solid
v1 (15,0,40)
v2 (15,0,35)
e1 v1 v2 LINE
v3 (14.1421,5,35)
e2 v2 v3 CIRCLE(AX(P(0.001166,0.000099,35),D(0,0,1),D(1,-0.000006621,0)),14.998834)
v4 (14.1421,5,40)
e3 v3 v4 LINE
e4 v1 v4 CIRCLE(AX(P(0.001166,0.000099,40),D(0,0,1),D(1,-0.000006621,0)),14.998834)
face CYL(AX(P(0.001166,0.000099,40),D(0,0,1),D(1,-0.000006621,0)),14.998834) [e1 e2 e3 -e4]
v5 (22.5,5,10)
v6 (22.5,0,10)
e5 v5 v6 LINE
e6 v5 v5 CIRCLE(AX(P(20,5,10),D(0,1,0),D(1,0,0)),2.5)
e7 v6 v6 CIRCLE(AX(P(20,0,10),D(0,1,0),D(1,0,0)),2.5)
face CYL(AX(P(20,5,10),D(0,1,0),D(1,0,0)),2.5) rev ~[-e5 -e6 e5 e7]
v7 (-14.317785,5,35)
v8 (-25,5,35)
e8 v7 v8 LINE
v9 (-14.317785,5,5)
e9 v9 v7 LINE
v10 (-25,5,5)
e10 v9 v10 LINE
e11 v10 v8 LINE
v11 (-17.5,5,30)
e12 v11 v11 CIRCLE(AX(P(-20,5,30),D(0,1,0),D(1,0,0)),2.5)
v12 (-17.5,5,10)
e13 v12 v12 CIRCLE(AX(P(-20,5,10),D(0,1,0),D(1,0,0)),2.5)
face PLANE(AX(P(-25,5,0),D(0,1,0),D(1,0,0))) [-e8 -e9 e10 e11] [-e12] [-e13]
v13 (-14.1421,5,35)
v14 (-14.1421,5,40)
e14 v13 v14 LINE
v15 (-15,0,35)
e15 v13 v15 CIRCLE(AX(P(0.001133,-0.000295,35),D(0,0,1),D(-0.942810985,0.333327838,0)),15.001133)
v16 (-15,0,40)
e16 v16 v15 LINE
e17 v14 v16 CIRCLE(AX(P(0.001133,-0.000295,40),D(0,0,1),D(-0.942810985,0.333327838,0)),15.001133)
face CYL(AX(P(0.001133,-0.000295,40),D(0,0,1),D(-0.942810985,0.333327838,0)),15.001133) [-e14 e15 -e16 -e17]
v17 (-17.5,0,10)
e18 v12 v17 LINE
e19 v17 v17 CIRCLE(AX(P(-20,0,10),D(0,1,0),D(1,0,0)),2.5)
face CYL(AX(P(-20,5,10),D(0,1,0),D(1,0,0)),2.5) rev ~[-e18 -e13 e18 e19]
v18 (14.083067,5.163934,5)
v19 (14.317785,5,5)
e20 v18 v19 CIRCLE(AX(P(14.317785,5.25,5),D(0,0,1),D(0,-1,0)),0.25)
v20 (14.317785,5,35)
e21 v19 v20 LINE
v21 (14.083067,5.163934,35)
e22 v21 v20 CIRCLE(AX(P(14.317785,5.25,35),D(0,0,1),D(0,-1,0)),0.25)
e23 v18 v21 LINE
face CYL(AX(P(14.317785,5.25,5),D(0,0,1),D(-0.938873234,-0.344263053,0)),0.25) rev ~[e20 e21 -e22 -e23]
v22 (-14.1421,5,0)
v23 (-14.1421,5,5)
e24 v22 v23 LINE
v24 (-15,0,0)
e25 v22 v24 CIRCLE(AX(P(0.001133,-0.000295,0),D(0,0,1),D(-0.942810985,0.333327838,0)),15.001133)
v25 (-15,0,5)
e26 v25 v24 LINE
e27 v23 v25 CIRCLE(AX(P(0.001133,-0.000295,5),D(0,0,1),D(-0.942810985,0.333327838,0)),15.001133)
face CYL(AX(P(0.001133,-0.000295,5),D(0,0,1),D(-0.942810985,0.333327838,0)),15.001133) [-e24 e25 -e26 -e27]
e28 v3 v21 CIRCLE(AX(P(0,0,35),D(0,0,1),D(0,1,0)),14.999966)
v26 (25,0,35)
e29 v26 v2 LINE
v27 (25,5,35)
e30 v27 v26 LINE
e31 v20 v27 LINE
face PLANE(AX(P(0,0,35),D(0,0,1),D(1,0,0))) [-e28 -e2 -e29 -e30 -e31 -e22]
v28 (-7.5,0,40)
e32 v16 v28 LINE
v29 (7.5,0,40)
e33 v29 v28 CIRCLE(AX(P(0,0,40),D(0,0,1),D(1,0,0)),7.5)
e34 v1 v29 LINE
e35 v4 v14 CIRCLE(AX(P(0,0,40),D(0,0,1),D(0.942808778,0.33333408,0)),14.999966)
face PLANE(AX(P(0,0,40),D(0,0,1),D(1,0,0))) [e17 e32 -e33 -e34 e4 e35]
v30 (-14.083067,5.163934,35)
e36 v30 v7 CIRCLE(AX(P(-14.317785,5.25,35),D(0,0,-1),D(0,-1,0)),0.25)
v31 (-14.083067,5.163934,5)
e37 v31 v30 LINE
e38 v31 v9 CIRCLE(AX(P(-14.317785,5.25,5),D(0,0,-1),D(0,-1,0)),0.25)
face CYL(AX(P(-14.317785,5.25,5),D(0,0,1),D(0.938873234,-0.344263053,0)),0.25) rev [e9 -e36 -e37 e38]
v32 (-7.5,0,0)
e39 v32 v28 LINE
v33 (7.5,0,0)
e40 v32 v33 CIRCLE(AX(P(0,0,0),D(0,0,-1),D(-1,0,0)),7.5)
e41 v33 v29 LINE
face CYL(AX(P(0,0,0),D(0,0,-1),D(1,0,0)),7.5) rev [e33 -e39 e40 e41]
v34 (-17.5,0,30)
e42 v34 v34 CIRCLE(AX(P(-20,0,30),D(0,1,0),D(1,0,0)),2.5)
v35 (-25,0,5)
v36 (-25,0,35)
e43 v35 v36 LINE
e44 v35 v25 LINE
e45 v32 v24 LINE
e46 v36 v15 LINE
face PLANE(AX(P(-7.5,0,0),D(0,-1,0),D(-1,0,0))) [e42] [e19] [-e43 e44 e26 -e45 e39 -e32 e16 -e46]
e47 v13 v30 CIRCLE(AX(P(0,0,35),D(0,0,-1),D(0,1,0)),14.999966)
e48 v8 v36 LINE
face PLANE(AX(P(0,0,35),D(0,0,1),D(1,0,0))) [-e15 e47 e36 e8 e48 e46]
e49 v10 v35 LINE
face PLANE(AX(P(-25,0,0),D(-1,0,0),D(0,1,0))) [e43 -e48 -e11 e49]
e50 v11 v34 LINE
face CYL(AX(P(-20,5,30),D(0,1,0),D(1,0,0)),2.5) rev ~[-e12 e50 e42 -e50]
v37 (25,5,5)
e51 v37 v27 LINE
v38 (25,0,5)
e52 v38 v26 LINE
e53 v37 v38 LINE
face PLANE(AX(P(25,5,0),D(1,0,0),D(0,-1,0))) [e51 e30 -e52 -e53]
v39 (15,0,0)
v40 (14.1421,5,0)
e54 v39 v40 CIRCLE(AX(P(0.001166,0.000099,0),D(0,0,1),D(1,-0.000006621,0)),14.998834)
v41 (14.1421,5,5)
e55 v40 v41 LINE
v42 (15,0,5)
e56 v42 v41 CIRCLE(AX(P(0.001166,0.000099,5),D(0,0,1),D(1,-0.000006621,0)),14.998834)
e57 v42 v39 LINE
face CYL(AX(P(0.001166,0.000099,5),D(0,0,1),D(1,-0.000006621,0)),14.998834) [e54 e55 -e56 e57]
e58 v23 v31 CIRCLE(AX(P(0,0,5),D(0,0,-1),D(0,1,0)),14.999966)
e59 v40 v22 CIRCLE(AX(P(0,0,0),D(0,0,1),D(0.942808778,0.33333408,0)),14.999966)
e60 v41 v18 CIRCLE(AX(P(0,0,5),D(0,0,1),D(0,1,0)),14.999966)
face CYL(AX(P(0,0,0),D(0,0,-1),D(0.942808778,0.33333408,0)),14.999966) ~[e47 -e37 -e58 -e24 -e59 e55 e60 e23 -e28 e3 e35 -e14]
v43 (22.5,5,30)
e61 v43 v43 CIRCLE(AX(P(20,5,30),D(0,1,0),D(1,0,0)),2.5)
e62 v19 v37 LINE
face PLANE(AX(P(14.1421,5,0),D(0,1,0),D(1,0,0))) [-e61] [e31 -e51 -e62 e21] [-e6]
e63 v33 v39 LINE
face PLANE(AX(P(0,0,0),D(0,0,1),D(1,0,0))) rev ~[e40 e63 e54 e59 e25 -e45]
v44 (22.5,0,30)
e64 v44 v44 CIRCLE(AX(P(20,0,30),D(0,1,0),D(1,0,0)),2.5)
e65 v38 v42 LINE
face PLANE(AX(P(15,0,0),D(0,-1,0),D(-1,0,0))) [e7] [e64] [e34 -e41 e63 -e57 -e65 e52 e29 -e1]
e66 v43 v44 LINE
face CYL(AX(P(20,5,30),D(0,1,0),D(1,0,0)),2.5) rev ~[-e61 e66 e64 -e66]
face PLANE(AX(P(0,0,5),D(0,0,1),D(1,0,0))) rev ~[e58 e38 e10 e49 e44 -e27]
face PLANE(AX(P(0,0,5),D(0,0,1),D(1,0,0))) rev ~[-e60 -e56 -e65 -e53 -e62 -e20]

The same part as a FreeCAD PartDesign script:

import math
import FreeCAD as App
import Part
import Sketcher

V = App.Vector
Q = App.Units.Quantity


def edges_at(feature, points):
    """Names of the edges that pass closest to the given points."""
    edges = feature.Shape.Edges
    near = lambda p: min(range(len(edges)), key=lambda i: edges[i].distToShape(Part.Vertex(*p))[0])
    return sorted({f"Edge{near(p) + 1}" for p in points})

doc = App.newDocument("Part")
params = doc.addObject("Spreadsheet::Sheet", "Params")
for row, (alias, value) in enumerate([
    ("sketch1_radius", "15 mm"),
    ("sketch1_radius2", "7.5 mm"),
    ("sketch1_height", "5 mm"),
    ("pad1_length", "40 mm"),
    ("sketch2_width", "10 mm"),
    ("sketch2_height", "5 mm"),
    ("pocket1_length", "5 mm"),
    ("linearpattern_pitch", "35 mm"),
    ("fillet_radius", "0.25 mm"),
    ("sketch3_diameter", "5 mm"),
], start=1):
    params.set(f"A{row}", alias)
    params.set(f"B{row}", "=" + value)
    params.setAlias(f"B{row}", alias)

body = doc.addObject("PartDesign::Body", "Body")

sketch1 = body.newObject("Sketcher::SketchObject", "Sketch")
sketch1.AttachmentSupport = (doc.getObject("XY_Plane"), [""])
sketch1.MapMode = "FlatFace"
sketch1.addGeometry(Part.LineSegment(V(8, 0, 0), V(25, 0, 0)), False)
sketch1.addGeometry(Part.LineSegment(V(25, 0, 0), V(25, 5, 0)), False)
sketch1.addGeometry(Part.LineSegment(V(25, 5, 0), V(14, 5, 0)), False)
sketch1.addGeometry(Part.ArcOfCircle(Part.Circle(V(0, 0, 0), V(0, 0, 1), 15), math.radians(19), math.radians(161)), False)
sketch1.addGeometry(Part.LineSegment(V(-14, 5, 0), V(-25, 5, 0)), False)
sketch1.addGeometry(Part.LineSegment(V(-25, 5, 0), V(-25, 0, 0)), False)
sketch1.addGeometry(Part.LineSegment(V(-25, 0, 0), V(-8, 0, 0)), False)
sketch1.addGeometry(Part.ArcOfCircle(Part.Circle(V(0, 0, 0), V(0, 0, 1), 8), math.radians(0), math.radians(180)), False)
sketch1.addConstraint(Sketcher.Constraint("Coincident", 0, 2, 1, 1))
sketch1.addConstraint(Sketcher.Constraint("Coincident", 1, 2, 2, 1))
sketch1.addConstraint(Sketcher.Constraint("Coincident", 2, 2, 3, 1))
sketch1.addConstraint(Sketcher.Constraint("Coincident", 3, 2, 4, 1))
sketch1.addConstraint(Sketcher.Constraint("Coincident", 4, 2, 5, 1))
sketch1.addConstraint(Sketcher.Constraint("Coincident", 5, 2, 6, 1))
sketch1.addConstraint(Sketcher.Constraint("Coincident", 6, 2, 7, 2))
sketch1.addConstraint(Sketcher.Constraint("Coincident", 7, 1, 0, 1))
sketch1.addConstraint(Sketcher.Constraint("Horizontal", 0))
sketch1.addConstraint(Sketcher.Constraint("Vertical", 1))
sketch1.addConstraint(Sketcher.Constraint("Horizontal", 2))
sketch1.addConstraint(Sketcher.Constraint("Horizontal", 4))
sketch1.addConstraint(Sketcher.Constraint("Vertical", 5))
sketch1.addConstraint(Sketcher.Constraint("Horizontal", 6))
sketch1.addConstraint(Sketcher.Constraint("Coincident", 3, 3, -1, 1))
sketch1.addConstraint(Sketcher.Constraint("Coincident", 7, 3, -1, 1))
sketch1.addConstraint(Sketcher.Constraint("Symmetric", 0, 2, 5, 2, -1, 1))
sketch1.addConstraint(Sketcher.Constraint("PointOnObject", 0, 2, -1))
sketch1.addConstraint(Sketcher.Constraint("Horizontal", 2, 2, 3, 2))
sketch1.addConstraint(Sketcher.Constraint("Radius", 3, Q("15 mm")))
sketch1.addConstraint(Sketcher.Constraint("Radius", 7, Q("7.5 mm")))
sketch1.addConstraint(Sketcher.Constraint("DistanceY", 1, 1, 1, 2, Q("5 mm")))
sketch1.addConstraint(Sketcher.Constraint("DistanceX", 4, 2, 1, 2, Q("50 mm")))
sketch1.setExpression("Constraints[19]", "Params.sketch1_radius")
sketch1.setExpression("Constraints[20]", "Params.sketch1_radius2")
sketch1.setExpression("Constraints[21]", "Params.sketch1_height")
pad1 = body.newObject("PartDesign::Pad", "Pad")
pad1.Profile = sketch1
pad1.setExpression("Length", "Params.pad1_length")

sketch2 = body.newObject("Sketcher::SketchObject", "Sketch001")
sketch2.AttachmentSupport = (doc.getObject("XY_Plane"), [""])
sketch2.MapMode = "FlatFace"
sketch2.AttachmentOffset = App.Placement(V(0, 0, 40), App.Rotation())
sketch2.addGeometry(Part.LineSegment(V(25, 5, 0), V(14, 5, 0)), False)
sketch2.addGeometry(Part.ArcOfCircle(Part.Circle(V(0, 0, 0), V(0, 0, 1), 15), math.radians(0), math.radians(19.47)), False)
sketch2.addGeometry(Part.LineSegment(V(15, 0, 0), V(25, 0, 0)), False)
sketch2.addGeometry(Part.LineSegment(V(25, 0, 0), V(25, 5, 0)), False)
sketch2.addGeometry(Part.ArcOfCircle(Part.Circle(V(0, 0, 0), V(0, 0, 1), 15), math.radians(160.53), math.radians(180)), False)
sketch2.addGeometry(Part.LineSegment(V(-14, 5, 0), V(-25, 5, 0)), False)
sketch2.addGeometry(Part.LineSegment(V(-25, 5, 0), V(-25, 0, 0)), False)
sketch2.addGeometry(Part.LineSegment(V(-25, 0, 0), V(-15, 0, 0)), False)
sketch2.addConstraint(Sketcher.Constraint("Coincident", 0, 2, 1, 2))
sketch2.addConstraint(Sketcher.Constraint("Coincident", 1, 1, 2, 1))
sketch2.addConstraint(Sketcher.Constraint("Coincident", 2, 2, 3, 1))
sketch2.addConstraint(Sketcher.Constraint("Coincident", 3, 2, 0, 1))
sketch2.addConstraint(Sketcher.Constraint("Coincident", 4, 1, 5, 1))
sketch2.addConstraint(Sketcher.Constraint("Coincident", 5, 2, 6, 1))
sketch2.addConstraint(Sketcher.Constraint("Coincident", 6, 2, 7, 1))
sketch2.addConstraint(Sketcher.Constraint("Coincident", 7, 2, 4, 2))
sketch2.addConstraint(Sketcher.Constraint("Horizontal", 0))
sketch2.addConstraint(Sketcher.Constraint("Horizontal", 2))
sketch2.addConstraint(Sketcher.Constraint("Vertical", 3))
sketch2.addConstraint(Sketcher.Constraint("Horizontal", 5))
sketch2.addConstraint(Sketcher.Constraint("Vertical", 6))
sketch2.addConstraint(Sketcher.Constraint("Horizontal", 7))
sketch2.addConstraint(Sketcher.Constraint("Coincident", 4, 3, 1, 3))
sketch2.addConstraint(Sketcher.Constraint("Symmetric", 2, 2, 6, 2, -1, 1))
sketch2.addConstraint(Sketcher.Constraint("Symmetric", 0, 2, 4, 1, -2))
sketch2.addConstraint(Sketcher.Constraint("Symmetric", 1, 1, 7, 2, -2))
sketch2.addConstraint(Sketcher.Constraint("PointOnObject", 1, 3, -1))
sketch2.addConstraint(Sketcher.Constraint("DistanceX", 2, 1, 2, 2, Q("10 mm")))
sketch2.addConstraint(Sketcher.Constraint("DistanceY", 3, 1, 3, 2, Q("5 mm")))
sketch2.addConstraint(Sketcher.Constraint("DistanceX", -1, 1, 1, 1, Q("15 mm")))
sketch2.setExpression("Constraints[19]", "Params.sketch2_width")
sketch2.setExpression("Constraints[20]", "Params.sketch2_height")
pocket1 = body.newObject("PartDesign::Pocket", "Pocket")
pocket1.Profile = sketch2
pocket1.setExpression("Length", "Params.pocket1_length")
doc.recompute()

linearpattern = body.newObject("PartDesign::LinearPattern", "LinearPattern")
linearpattern.Originals = [pocket1]
linearpattern.Direction = (doc.getObject("Z_Axis"), [""])
linearpattern.Mode = "offset"
linearpattern.setExpression("Offset", "Params.linearpattern_pitch")
linearpattern.Occurrences = 2
linearpattern.Reversed = True
body.Tip = linearpattern
doc.recompute()

fillet = body.newObject("PartDesign::Fillet", "Fillet")
fillet.Base = (linearpattern, edges_at(linearpattern, [(14.142, 5, 20), (-14.142, 5, 20)]))
fillet.setExpression("Radius", "Params.fillet_radius")

sketch3 = body.newObject("Sketcher::SketchObject", "Sketch002")
sketch3.AttachmentSupport = (doc.getObject("XZ_Plane"), [""])
sketch3.MapMode = "FlatFace"
sketch3.AttachmentOffset = App.Placement(V(0, 0, -5), App.Rotation())
sketch3.addGeometry(Part.Circle(V(20, 10, 0), V(0, 0, 1), 2.5), False)
sketch3.addGeometry(Part.Circle(V(20, 30, 0), V(0, 0, 1), 2.5), False)
sketch3.addGeometry(Part.Circle(V(-20, 10, 0), V(0, 0, 1), 2.5), False)
sketch3.addGeometry(Part.Circle(V(-20, 30, 0), V(0, 0, 1), 2.5), False)
sketch3.addConstraint(Sketcher.Constraint("Equal", 0, 1))
sketch3.addConstraint(Sketcher.Constraint("Equal", 1, 2))
sketch3.addConstraint(Sketcher.Constraint("Equal", 2, 3))
sketch3.addConstraint(Sketcher.Constraint("Symmetric", 0, 3, 2, 3, -2))
sketch3.addConstraint(Sketcher.Constraint("Symmetric", 1, 3, 3, 3, -2))
sketch3.addConstraint(Sketcher.Constraint("Vertical", 0, 3, 1, 3))
sketch3.addConstraint(Sketcher.Constraint("Diameter", 0, Q("5 mm")))
sketch3.addConstraint(Sketcher.Constraint("DistanceX", -1, 1, 0, 3, Q("20 mm")))
sketch3.addConstraint(Sketcher.Constraint("DistanceY", -1, 1, 0, 3, Q("10 mm")))
sketch3.addConstraint(Sketcher.Constraint("DistanceY", -1, 1, 1, 3, Q("30 mm")))
sketch3.setExpression("Constraints[6]", "Params.sketch3_diameter")
pocket2 = body.newObject("PartDesign::Pocket", "Pocket001")
pocket2.Profile = sketch3
pocket2.Type = "ThroughAll"
pocket2.Reversed = True

doc.recompute()
